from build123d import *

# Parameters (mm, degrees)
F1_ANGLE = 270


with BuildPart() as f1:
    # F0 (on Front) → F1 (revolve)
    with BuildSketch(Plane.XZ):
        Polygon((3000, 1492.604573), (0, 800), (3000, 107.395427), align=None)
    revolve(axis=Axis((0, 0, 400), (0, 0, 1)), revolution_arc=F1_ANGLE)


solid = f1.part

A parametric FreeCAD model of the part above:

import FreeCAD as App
import Part
import Sketcher
from FreeCAD import Vector
Q = App.Units.Quantity

doc = App.newDocument("Part")
body = doc.addObject("PartDesign::Body", "Body")

# Sketch on XZ plane
sketch1 = body.newObject("Sketcher::SketchObject", "Sketch")
sketch1.AttachmentSupport = (doc.getObject("XZ_Plane"), [""])
sketch1.MapMode = "FlatFace"
sketch1.addGeometry(Part.LineSegment(Vector(3000, 1492.604573, 0), Vector(0, 800, 0)), False)
sketch1.addGeometry(Part.LineSegment(Vector(0, 800, 0), Vector(3000, 107.395427, 0)), False)
sketch1.addGeometry(Part.LineSegment(Vector(3000, 107.395427, 0), Vector(3000, 1492.604573, 0)), False)
sketch1.addConstraint(Sketcher.Constraint("Coincident", 0, 2, 1, 1))
sketch1.addConstraint(Sketcher.Constraint("Coincident", 1, 2, 2, 1))
sketch1.addConstraint(Sketcher.Constraint("Coincident", 2, 2, 0, 1))
sketch1.addConstraint(Sketcher.Constraint("Vertical", 2))
sketch1.addConstraint(Sketcher.Constraint("PointOnObject", 0, 2, -2))
sketch1.addConstraint(Sketcher.Constraint("Equal", 0, 1))
sketch1.addConstraint(Sketcher.Constraint("Angle", 0, Q("-167 deg")))
sketch1.addConstraint(Sketcher.Constraint("DistanceY", -1, 1, 0, 2, 800.0))
sketch1.addConstraint(Sketcher.Constraint("DistanceX", -1, 1, 1, 2, 3000.0))
revolution = body.newObject("PartDesign::Revolution", "Revolution")
revolution.Profile = sketch1
revolution.ReferenceAxis = (sketch1, ["V_Axis"])
revolution.Angle = 270

doc.recompute()
